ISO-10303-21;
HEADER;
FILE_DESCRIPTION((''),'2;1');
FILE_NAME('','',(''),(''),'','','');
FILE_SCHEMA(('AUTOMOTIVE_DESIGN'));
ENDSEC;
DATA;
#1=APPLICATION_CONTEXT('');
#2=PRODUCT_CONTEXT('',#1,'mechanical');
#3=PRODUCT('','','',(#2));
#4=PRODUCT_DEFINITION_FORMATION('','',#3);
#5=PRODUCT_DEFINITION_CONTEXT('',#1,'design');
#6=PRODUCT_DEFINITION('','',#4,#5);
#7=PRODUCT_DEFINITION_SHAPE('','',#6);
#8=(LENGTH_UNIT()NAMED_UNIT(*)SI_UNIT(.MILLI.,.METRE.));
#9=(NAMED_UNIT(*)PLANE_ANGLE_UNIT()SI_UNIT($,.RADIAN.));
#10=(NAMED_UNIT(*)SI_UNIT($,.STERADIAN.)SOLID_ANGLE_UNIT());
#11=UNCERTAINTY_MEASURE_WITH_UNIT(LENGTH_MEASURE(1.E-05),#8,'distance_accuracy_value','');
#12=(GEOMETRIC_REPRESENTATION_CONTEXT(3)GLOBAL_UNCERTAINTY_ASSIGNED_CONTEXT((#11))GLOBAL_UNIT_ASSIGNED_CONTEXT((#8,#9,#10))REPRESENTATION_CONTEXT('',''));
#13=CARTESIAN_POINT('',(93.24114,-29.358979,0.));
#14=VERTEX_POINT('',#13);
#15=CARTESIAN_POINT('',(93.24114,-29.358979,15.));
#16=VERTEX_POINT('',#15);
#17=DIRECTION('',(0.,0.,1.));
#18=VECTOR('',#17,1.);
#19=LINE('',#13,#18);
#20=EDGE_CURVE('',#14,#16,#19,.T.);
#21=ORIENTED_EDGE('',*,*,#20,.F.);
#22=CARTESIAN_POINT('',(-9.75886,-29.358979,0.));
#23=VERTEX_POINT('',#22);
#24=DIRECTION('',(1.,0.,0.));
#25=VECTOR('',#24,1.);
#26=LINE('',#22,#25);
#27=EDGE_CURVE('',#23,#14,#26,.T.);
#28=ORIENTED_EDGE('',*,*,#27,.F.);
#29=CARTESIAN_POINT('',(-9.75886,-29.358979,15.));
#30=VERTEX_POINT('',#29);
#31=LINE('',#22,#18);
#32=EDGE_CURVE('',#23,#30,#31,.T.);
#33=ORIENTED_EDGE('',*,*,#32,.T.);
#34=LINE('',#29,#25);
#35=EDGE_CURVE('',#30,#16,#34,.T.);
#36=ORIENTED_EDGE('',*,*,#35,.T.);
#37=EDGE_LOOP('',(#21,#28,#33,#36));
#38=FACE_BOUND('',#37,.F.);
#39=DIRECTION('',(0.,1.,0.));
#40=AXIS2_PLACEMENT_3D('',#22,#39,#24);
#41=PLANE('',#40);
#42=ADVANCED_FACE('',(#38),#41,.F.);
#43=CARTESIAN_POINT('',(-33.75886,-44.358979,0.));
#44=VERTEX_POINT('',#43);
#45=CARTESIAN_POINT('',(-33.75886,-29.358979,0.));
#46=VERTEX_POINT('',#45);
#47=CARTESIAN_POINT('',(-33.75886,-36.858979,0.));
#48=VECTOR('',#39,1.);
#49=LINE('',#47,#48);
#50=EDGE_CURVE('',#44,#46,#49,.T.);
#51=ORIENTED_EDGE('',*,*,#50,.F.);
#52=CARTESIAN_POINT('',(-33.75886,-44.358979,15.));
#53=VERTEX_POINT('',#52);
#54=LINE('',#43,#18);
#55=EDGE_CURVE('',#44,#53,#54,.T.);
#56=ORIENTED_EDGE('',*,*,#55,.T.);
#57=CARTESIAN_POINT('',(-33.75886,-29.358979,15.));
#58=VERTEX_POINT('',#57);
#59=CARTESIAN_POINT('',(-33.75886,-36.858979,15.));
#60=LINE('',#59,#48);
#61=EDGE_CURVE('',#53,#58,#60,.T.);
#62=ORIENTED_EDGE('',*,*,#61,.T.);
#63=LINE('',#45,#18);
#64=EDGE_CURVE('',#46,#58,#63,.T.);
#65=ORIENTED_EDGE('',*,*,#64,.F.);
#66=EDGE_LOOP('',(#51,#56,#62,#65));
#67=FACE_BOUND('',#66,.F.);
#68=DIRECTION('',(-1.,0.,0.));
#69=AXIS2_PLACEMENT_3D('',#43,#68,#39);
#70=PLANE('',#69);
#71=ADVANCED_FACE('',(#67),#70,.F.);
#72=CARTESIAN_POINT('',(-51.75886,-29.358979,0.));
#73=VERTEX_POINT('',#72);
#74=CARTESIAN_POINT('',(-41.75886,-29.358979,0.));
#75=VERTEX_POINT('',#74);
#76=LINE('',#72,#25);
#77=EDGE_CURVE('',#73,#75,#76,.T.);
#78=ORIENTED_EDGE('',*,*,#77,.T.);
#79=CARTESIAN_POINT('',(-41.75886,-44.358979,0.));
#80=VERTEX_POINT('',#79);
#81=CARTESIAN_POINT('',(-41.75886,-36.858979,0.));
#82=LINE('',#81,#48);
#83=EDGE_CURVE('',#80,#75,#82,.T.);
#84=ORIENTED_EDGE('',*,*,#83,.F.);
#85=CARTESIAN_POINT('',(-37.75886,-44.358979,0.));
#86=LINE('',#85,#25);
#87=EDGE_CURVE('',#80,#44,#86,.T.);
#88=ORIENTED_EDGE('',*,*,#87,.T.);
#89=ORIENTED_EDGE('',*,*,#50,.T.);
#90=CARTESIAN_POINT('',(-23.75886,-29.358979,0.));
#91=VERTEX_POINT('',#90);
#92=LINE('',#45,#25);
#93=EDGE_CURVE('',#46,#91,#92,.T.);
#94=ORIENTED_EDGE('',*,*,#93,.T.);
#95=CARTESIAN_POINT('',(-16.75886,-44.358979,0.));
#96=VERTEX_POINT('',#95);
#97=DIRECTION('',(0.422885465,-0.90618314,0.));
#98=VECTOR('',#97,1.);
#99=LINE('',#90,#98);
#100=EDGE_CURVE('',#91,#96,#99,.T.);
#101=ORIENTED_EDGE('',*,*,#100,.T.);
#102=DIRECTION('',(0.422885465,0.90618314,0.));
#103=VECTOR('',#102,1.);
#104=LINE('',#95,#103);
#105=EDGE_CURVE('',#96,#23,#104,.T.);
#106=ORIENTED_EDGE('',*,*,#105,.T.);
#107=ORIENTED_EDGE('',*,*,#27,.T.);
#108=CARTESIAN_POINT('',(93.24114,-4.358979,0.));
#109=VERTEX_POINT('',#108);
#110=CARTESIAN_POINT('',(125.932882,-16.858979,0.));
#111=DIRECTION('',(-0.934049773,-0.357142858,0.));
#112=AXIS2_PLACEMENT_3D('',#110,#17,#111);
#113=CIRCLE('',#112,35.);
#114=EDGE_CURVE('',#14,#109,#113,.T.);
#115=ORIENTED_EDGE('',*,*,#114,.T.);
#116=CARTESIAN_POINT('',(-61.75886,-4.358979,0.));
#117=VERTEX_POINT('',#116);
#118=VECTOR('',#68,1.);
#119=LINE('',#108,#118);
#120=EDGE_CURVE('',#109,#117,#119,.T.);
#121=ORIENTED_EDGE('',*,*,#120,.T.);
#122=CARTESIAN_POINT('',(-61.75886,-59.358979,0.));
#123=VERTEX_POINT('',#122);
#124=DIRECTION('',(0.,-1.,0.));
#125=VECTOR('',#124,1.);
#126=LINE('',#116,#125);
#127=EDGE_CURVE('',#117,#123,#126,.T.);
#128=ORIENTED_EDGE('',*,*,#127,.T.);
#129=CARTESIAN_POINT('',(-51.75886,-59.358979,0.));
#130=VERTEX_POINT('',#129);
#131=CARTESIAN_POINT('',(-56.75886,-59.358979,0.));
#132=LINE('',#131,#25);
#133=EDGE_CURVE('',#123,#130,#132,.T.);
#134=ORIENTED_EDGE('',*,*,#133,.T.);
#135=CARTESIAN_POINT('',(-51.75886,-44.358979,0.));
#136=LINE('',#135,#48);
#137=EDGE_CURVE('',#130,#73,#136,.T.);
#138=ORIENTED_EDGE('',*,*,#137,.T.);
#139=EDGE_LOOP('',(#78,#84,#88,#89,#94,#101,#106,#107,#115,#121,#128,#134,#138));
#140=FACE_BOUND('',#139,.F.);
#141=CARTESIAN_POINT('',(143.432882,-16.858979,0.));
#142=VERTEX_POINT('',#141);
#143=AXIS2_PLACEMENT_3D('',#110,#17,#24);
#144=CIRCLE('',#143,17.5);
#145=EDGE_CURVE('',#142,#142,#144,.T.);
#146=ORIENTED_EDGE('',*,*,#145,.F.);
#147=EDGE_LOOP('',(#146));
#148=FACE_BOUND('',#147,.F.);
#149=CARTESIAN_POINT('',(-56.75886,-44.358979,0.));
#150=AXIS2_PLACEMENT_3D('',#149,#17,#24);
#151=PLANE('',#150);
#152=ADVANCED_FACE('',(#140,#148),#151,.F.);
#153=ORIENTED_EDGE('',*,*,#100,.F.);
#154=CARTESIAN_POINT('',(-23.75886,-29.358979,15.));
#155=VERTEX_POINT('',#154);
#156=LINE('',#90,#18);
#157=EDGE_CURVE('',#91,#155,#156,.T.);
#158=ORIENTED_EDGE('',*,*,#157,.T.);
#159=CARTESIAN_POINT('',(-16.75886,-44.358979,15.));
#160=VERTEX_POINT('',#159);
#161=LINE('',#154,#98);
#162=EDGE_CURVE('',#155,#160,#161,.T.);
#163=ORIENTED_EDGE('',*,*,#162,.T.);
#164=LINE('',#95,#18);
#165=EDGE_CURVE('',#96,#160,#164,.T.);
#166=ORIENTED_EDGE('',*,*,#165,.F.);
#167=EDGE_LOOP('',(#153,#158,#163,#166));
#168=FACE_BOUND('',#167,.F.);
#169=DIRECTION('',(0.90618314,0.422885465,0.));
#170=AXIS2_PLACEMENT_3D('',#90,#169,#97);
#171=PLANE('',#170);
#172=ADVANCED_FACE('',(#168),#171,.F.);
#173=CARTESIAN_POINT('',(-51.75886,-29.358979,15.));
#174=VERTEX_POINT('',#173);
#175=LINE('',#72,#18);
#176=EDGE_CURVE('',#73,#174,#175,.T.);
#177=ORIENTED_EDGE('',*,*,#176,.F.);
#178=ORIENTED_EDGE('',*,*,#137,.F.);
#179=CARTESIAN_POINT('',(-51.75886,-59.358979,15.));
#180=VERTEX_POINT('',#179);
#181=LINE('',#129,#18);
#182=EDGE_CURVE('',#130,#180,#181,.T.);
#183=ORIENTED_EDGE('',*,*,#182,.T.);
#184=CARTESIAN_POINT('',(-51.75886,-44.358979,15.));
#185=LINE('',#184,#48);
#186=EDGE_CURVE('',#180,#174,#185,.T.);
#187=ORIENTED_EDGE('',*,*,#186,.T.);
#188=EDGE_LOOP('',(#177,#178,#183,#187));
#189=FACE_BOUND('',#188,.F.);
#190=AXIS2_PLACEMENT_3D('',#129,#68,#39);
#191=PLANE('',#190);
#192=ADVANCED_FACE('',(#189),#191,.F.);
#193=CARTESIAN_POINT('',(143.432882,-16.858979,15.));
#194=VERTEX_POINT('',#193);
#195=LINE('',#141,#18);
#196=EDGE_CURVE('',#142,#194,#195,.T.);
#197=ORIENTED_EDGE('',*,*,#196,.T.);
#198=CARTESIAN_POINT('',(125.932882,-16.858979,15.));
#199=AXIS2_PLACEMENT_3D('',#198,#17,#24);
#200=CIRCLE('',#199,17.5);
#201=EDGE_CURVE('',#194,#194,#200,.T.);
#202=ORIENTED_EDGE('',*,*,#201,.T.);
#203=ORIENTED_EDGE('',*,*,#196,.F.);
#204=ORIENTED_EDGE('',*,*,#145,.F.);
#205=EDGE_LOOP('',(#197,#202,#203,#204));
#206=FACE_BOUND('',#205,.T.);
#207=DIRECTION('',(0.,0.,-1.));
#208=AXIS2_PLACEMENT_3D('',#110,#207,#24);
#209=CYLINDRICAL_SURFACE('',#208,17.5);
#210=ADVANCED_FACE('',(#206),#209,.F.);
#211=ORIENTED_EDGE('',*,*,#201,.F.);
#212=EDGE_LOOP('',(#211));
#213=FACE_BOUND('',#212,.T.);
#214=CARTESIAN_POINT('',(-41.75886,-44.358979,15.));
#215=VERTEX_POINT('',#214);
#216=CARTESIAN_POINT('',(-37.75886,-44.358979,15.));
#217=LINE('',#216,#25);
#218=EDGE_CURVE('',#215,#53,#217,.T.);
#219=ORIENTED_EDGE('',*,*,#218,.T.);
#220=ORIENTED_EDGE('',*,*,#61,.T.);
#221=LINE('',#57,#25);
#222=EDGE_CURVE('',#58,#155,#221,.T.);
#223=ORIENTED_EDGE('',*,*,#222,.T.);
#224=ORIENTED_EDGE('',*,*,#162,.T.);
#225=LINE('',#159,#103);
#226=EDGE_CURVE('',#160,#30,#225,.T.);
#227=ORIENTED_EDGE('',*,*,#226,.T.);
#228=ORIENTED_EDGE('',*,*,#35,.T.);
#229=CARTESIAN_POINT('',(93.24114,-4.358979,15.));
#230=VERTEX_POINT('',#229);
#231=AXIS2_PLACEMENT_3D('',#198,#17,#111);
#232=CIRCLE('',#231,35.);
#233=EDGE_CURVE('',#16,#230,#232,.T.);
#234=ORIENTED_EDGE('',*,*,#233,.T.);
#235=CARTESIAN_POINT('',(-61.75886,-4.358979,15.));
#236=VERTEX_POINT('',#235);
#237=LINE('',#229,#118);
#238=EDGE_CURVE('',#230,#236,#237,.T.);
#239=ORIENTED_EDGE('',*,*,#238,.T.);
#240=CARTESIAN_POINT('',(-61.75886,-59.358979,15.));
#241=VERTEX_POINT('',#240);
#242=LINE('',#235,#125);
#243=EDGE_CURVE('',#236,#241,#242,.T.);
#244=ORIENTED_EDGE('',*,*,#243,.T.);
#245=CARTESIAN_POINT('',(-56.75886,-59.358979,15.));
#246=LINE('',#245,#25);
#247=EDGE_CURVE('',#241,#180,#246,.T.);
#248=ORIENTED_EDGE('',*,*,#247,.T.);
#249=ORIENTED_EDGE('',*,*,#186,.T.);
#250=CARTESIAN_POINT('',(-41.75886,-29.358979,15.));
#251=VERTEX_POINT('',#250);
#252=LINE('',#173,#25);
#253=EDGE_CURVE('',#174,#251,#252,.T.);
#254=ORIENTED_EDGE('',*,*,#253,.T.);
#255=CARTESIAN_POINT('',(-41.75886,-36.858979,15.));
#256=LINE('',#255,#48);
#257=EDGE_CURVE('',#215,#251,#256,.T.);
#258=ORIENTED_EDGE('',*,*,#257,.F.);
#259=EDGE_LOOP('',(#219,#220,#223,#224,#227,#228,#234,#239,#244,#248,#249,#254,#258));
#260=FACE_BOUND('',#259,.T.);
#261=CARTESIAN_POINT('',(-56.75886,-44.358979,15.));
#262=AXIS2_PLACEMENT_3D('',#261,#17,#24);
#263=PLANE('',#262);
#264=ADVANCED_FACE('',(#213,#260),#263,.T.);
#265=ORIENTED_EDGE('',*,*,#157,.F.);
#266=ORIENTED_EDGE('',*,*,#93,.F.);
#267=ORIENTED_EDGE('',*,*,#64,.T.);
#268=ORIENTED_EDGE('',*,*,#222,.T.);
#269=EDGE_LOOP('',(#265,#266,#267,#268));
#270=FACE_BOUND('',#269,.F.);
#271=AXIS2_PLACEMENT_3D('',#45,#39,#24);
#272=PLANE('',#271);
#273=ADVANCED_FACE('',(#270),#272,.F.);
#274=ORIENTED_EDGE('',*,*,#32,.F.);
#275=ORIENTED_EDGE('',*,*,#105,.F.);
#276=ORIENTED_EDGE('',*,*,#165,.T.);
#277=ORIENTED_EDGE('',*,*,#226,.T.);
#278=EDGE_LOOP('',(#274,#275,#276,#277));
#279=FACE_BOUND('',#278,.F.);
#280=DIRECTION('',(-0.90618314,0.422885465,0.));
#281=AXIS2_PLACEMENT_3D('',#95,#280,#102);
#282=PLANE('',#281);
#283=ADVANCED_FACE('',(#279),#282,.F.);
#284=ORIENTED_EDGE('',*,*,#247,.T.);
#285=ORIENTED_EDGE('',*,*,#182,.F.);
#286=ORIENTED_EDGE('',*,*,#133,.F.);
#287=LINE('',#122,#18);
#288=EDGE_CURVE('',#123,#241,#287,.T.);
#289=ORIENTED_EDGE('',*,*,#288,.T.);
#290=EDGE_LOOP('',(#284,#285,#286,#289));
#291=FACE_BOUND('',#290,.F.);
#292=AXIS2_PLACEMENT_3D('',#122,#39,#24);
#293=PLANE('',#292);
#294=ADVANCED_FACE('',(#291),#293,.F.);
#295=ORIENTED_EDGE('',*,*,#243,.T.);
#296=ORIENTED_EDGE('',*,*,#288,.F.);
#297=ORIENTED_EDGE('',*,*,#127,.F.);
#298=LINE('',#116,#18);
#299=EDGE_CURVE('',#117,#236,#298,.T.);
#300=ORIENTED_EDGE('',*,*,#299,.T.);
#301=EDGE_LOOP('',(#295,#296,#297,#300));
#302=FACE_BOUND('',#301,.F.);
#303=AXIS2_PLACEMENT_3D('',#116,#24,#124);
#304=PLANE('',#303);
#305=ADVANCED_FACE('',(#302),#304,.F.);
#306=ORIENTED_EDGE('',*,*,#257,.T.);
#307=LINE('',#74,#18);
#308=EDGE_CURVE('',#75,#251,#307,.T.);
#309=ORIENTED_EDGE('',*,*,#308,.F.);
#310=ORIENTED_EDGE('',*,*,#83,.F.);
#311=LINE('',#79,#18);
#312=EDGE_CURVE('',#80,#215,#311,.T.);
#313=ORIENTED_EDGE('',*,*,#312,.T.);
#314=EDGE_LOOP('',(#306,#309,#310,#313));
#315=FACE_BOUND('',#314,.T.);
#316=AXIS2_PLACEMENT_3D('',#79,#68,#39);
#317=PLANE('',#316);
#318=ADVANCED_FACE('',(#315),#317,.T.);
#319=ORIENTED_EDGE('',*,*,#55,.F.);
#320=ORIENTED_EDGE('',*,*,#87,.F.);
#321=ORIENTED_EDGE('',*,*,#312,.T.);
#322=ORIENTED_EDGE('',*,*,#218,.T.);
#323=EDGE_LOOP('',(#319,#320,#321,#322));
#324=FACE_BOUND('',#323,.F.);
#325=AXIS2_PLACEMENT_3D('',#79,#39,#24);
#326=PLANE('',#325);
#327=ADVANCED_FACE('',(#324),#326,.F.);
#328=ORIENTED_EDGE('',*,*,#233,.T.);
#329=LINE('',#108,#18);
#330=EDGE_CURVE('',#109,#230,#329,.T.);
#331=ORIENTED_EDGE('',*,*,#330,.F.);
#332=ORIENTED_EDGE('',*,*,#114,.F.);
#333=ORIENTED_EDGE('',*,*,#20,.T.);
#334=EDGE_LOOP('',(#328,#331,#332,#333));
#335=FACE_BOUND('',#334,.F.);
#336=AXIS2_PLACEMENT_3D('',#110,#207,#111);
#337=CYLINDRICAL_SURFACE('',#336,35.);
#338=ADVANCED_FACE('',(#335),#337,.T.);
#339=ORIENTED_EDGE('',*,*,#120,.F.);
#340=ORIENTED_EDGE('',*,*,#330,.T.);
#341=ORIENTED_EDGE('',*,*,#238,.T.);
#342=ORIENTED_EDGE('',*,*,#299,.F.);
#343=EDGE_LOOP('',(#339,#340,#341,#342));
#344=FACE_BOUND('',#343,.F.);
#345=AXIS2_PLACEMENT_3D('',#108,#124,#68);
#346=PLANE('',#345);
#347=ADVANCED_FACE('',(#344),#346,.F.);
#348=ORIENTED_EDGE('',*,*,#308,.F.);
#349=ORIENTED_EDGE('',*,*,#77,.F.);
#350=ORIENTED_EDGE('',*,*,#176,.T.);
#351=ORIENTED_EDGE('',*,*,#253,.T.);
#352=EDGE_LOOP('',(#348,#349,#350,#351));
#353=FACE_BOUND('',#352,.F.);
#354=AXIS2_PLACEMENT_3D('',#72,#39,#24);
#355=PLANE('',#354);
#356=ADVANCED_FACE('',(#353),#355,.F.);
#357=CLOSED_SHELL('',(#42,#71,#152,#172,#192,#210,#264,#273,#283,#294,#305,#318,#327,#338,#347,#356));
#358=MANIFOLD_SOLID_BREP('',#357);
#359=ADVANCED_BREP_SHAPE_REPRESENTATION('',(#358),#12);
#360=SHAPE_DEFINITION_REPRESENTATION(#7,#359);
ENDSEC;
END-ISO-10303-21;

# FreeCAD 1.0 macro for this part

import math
import FreeCAD as App
import Part
import Sketcher
Q = App.Units.Quantity

doc = App.newDocument("Part")
params = doc.addObject("Spreadsheet::Sheet", "Params")
for row, (alias, value) in enumerate([
    ("sketch1_diameter", "35 mm"),
    ("sketch1_radius", "35 mm"),
    ("sketch1_width", "10 mm"),
    ("sketch1_width2", "8 mm"),
    ("sketch1_width3", "103 mm"),
    ("pad1_length", "15 mm"),
], start=1):
    params.set(f"A{row}", alias)
    params.set(f"B{row}", "=" + value)
    params.setAlias(f"B{row}", alias)

body = doc.addObject("PartDesign::Body", "Body")

# Sketch on XY plane
sketch1 = body.newObject("Sketcher::SketchObject", "Sketch")
sketch1.AttachmentSupport = (doc.getObject("XY_Plane"), [""])
sketch1.MapMode = "FlatFace"
sketch1.addGeometry([
    Part.LineSegment(App.Vector(-61.75886, -59.358979, 0), App.Vector(-51.75886, -59.358979, 0)),  # 0
    Part.LineSegment(App.Vector(-51.75886, -59.358979, 0), App.Vector(-51.75886, -29.358979, 0)),  # 1
    Part.LineSegment(App.Vector(-51.75886, -29.358979, 0), App.Vector(-41.75886, -29.358979, 0)),  # 2
    Part.LineSegment(App.Vector(-41.75886, -29.358979, 0), App.Vector(-41.75886, -44.358979, 0)),  # 3
    Part.LineSegment(App.Vector(-41.75886, -44.358979, 0), App.Vector(-33.75886, -44.358979, 0)),  # 4
    Part.LineSegment(App.Vector(-33.75886, -44.358979, 0), App.Vector(-33.75886, -29.358979, 0)),  # 5
    Part.LineSegment(App.Vector(-33.75886, -29.358979, 0), App.Vector(-23.75886, -29.358979, 0)),  # 6
    Part.LineSegment(App.Vector(-23.75886, -29.358979, 0), App.Vector(-16.75886, -44.358979, 0)),  # 7
    Part.LineSegment(App.Vector(-16.75886, -44.358979, 0), App.Vector(-9.75886, -29.358979, 0)),  # 8
    Part.LineSegment(App.Vector(-9.75886, -29.358979, 0), App.Vector(93.24114, -29.358979, 0)),  # 9
    Part.ArcOfCircle(Part.Circle(App.Vector(125.932882, -16.858979, 0), App.Vector(0, 0, 1), 35), math.radians(-159.075168), math.radians(159.075168)),  # 10
    Part.LineSegment(App.Vector(93.24114, -4.358979, 0), App.Vector(-61.75886, -4.358979, 0)),  # 11
    Part.LineSegment(App.Vector(-61.75886, -4.358979, 0), App.Vector(-61.75886, -59.358979, 0)),  # 12
    Part.Circle(App.Vector(125.932882, -16.858979, 0), App.Vector(0, 0, 1), 17.5),  # 13
], False)
sketch1.addConstraint([
    Sketcher.Constraint("Coincident", 0, 2, 1, 1),
    Sketcher.Constraint("Coincident", 1, 2, 2, 1),
    Sketcher.Constraint("Coincident", 2, 2, 3, 1),
    Sketcher.Constraint("Coincident", 3, 2, 4, 1),
    Sketcher.Constraint("Coincident", 4, 2, 5, 1),
    Sketcher.Constraint("Coincident", 5, 2, 6, 1),
    Sketcher.Constraint("Coincident", 6, 2, 7, 1),
    Sketcher.Constraint("Coincident", 7, 2, 8, 1),
    Sketcher.Constraint("Coincident", 8, 2, 9, 1),
    Sketcher.Constraint("Coincident", 9, 2, 10, 1),
    Sketcher.Constraint("Coincident", 10, 2, 11, 1),
    Sketcher.Constraint("Coincident", 11, 2, 12, 1),
    Sketcher.Constraint("Coincident", 12, 2, 0, 1),
    Sketcher.Constraint("Horizontal", 0),
    Sketcher.Constraint("Vertical", 1),
    Sketcher.Constraint("Horizontal", 2),
    Sketcher.Constraint("Vertical", 3),
    Sketcher.Constraint("Horizontal", 4),
    Sketcher.Constraint("Vertical", 5),
    Sketcher.Constraint("Horizontal", 6),
    Sketcher.Constraint("Horizontal", 9),
    Sketcher.Constraint("Horizontal", 11),
    Sketcher.Constraint("Vertical", 12),
    Sketcher.Constraint("Coincident", 13, 3, 10, 3),
    Sketcher.Constraint("Horizontal", 2, 2, 5, 2),
    Sketcher.Constraint("Horizontal", 4, 2, 7, 2),
    Sketcher.Constraint("Horizontal", 6, 2, 8, 2),
    Sketcher.Constraint("Vertical", 9, 2, 10, 2),
    Sketcher.Constraint("Equal", 0, 2),
    Sketcher.Constraint("Equal", 2, 6),
    Sketcher.Constraint("Equal", 7, 8),
    Sketcher.Constraint("Diameter", 13, Q("35 mm")),
    Sketcher.Constraint("Radius", 10, Q("35 mm")),
    Sketcher.Constraint("DistanceX", 0, 1, 0, 2, Q("10 mm")),
    Sketcher.Constraint("DistanceX", 4, 1, 4, 2, Q("8 mm")),
    Sketcher.Constraint("DistanceX", 9, 1, 9, 2, Q("103 mm")),
    Sketcher.Constraint("DistanceX", 11, 2, 11, 1, Q("155 mm")),
    Sketcher.Constraint("DistanceY", 1, 1, 1, 2, Q("30 mm")),
    Sketcher.Constraint("DistanceY", 3, 2, 3, 1, Q("15 mm")),
    Sketcher.Constraint("DistanceY", 12, 2, 12, 1, Q("55 mm")),
    Sketcher.Constraint("DistanceY", 10, 3, -1, 1, Q("16.858979 mm")),
    Sketcher.Constraint("DistanceX", 0, 2, -1, 1, Q("51.75886 mm")),
])
sketch1.setExpression("Constraints[31]", "Params.sketch1_diameter")
sketch1.setExpression("Constraints[32]", "Params.sketch1_radius")
sketch1.setExpression("Constraints[33]", "Params.sketch1_width")
sketch1.setExpression("Constraints[34]", "Params.sketch1_width2")
sketch1.setExpression("Constraints[35]", "Params.sketch1_width3")
pad1 = body.newObject("PartDesign::Pad", "Pad")
pad1.Profile = sketch1
pad1.setExpression("Length", "Params.pad1_length")

doc.recompute()
